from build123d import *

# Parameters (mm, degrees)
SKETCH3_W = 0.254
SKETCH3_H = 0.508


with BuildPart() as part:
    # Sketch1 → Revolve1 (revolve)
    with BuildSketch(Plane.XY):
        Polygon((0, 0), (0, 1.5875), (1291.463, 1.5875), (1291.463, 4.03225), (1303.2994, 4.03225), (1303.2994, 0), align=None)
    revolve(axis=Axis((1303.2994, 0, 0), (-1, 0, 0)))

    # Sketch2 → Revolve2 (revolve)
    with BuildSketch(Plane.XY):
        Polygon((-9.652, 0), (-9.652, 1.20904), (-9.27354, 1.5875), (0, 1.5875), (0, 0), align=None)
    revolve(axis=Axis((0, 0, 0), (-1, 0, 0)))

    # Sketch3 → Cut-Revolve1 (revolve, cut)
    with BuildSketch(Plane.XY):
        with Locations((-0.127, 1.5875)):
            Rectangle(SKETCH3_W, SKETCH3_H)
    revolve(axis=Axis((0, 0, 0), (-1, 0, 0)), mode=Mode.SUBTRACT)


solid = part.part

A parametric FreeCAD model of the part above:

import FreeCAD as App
import Part
import Sketcher
from FreeCAD import Vector
Q = App.Units.Quantity


def add_polygon(sketch, points):
    """Adds a closed chain of lines whose ends are joined by coincident constraints."""
    first, n = sketch.GeometryCount, len(points)
    for a, b in zip(points, points[1:] + points[:1]):
        sketch.addGeometry(Part.LineSegment(App.Vector(*a, 0), App.Vector(*b, 0)), False)
    for i in range(n):
        sketch.addConstraint(Sketcher.Constraint("Coincident", first + i, 2, first + (i + 1) % n, 1))

doc = App.newDocument("Part")
params = doc.addObject("Spreadsheet::Sheet", "Params")
for row, (alias, value) in enumerate([
    ("sketch1_width", "51.311 in"),
    ("sketch1_width2", "0.466 in"),
    ("sketch1_height", "0.0625 in"),
    ("revolution_angle", "360 deg"),
    ("sketch2_width", "0.38 in"),
    ("sketch2_height", "0.0625 in"),
    ("revolution2_angle", "360 deg"),
    ("sketch3_width", "0.01 in"),
    ("sketch3_height", "0.02 in"),
    ("groove_angle", "360 deg"),
], start=1):
    params.set(f"A{row}", alias)
    params.set(f"B{row}", "=" + value)
    params.setAlias(f"B{row}", alias)

body = doc.addObject("PartDesign::Body", "Body")

# Sketch on XY plane
sketch1 = doc.addObject("Sketcher::SketchObject", "Sketch")
body.addObject(sketch1)
sketch1.AttachmentSupport = (doc.XY_Plane, [""])
sketch1.MapMode = "FlatFace"
add_polygon(sketch1, [(0, 1.6), (0, 0), (1303.3, 0), (1303.3, 4), (1291.5, 4), (1291.5, 1.6)])  # lines 0-5
sketch1.addConstraint([
    Sketcher.Constraint("Vertical", 0),
    Sketcher.Constraint("Horizontal", 1),
    Sketcher.Constraint("Vertical", 2),
    Sketcher.Constraint("Horizontal", 3),
    Sketcher.Constraint("Vertical", 4),
    Sketcher.Constraint("Horizontal", 5),
    Sketcher.Constraint("Coincident", 0, 2, -1, 1),
    Sketcher.Constraint("DistanceX", 1, 1, 1, 2, Q("51.311 in")),
    Sketcher.Constraint("DistanceX", 3, 2, 3, 1, Q("0.466 in")),
    Sketcher.Constraint("DistanceY", 0, 2, 0, 1, Q("0.0625 in")),
    Sketcher.Constraint("DistanceY", 2, 1, 2, 2, 4.03225),
])
sketch1.setExpression("Constraints[13]", "Params.sketch1_width")
sketch1.setExpression("Constraints[14]", "Params.sketch1_width2")
sketch1.setExpression("Constraints[15]", "Params.sketch1_height")
revolution = doc.addObject("PartDesign::Revolution", "Revolution")
body.addObject(revolution)
revolution.Profile = sketch1
revolution.ReferenceAxis = (sketch1, ["H_Axis"])
revolution.setExpression("Angle", "Params.revolution_angle")

# Sketch on XY plane
sketch2 = doc.addObject("Sketcher::SketchObject", "Sketch001")
body.addObject(sketch2)
sketch2.AttachmentSupport = (doc.XY_Plane, [""])
sketch2.MapMode = "FlatFace"
add_polygon(sketch2, [(-9.7, 1.2), (-9.7, 0), (0, 0), (0, 1.6), (-9.3, 1.6)])  # lines 0-4
sketch2.addConstraint([
    Sketcher.Constraint("Vertical", 0),
    Sketcher.Constraint("Horizontal", 1),
    Sketcher.Constraint("Vertical", 2),
    Sketcher.Constraint("Horizontal", 3),
    Sketcher.Constraint("Coincident", 1, 2, -1, 1),
    Sketcher.Constraint("Angle", 4, Q("-135 deg")),
    Sketcher.Constraint("DistanceX", 1, 1, 1, 2, Q("0.38 in")),
    Sketcher.Constraint("DistanceY", 2, 1, 2, 2, Q("0.0625 in")),
    Sketcher.Constraint("DistanceX", 3, 2, 3, 1, Q("0.3651 in")),
])
sketch2.setExpression("Constraints[11]", "Params.sketch2_width")
sketch2.setExpression("Constraints[12]", "Params.sketch2_height")
revolution2 = doc.addObject("PartDesign::Revolution", "Revolution001")
body.addObject(revolution2)
revolution2.Profile = sketch2
revolution2.ReferenceAxis = (sketch2, ["H_Axis"])
revolution2.setExpression("Angle", "Params.revolution2_angle")

# Sketch on XY plane
sketch3 = doc.addObject("Sketcher::SketchObject", "Sketch002")
body.addObject(sketch3)
sketch3.AttachmentSupport = (doc.XY_Plane, [""])
sketch3.MapMode = "FlatFace"
add_polygon(sketch3, [(-0.25, 1.84), (-0.25, 1.33), (0, 1.33), (0, 1.84)])  # lines 0-3
sketch3.addConstraint([
    Sketcher.Constraint("Vertical", 0),
    Sketcher.Constraint("Horizontal", 1),
    Sketcher.Constraint("Vertical", 2),
    Sketcher.Constraint("Horizontal", 3),
    Sketcher.Constraint("PointOnObject", 1, 2, -2),
    Sketcher.Constraint("DistanceX", 1, 1, 1, 2, Q("0.01 in")),
    Sketcher.Constraint("DistanceY", 0, 2, 0, 1, Q("0.02 in")),
    Sketcher.Constraint("DistanceY", -1, 1, 0, 2, Q("0.0525 in")),
])
sketch3.setExpression("Constraints[9]", "Params.sketch3_width")
sketch3.setExpression("Constraints[10]", "Params.sketch3_height")
groove = doc.addObject("PartDesign::Groove", "Groove")
body.addObject(groove)
groove.Profile = sketch3
groove.ReferenceAxis = (sketch3, ["H_Axis"])
groove.setExpression("Angle", "Params.groove_angle")

doc.recompute()
